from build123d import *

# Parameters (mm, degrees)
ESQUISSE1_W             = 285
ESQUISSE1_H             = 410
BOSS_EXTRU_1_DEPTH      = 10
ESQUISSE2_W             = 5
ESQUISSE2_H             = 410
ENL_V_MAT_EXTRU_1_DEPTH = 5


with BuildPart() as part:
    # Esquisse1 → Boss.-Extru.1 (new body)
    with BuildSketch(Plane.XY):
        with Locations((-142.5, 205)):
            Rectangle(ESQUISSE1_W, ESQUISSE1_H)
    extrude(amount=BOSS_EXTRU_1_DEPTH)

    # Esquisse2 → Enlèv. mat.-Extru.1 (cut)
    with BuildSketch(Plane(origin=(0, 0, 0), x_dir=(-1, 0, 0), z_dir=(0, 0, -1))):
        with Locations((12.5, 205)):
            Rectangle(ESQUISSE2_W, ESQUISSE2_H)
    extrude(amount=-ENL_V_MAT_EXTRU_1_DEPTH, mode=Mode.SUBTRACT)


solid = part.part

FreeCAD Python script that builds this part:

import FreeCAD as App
import Part
import Sketcher
Q = App.Units.Quantity

doc = App.newDocument("Part")
body = doc.addObject("PartDesign::Body", "Body")

# Sketch on XY plane
sketch1 = body.newObject("Sketcher::SketchObject", "Sketch")
sketch1.AttachmentSupport = (doc.getObject("XY_Plane"), [""])
sketch1.MapMode = "FlatFace"
sketch1.addGeometry(Part.LineSegment(App.Vector(-285, 410, 0), App.Vector(-285, 0, 0)), False)
sketch1.addGeometry(Part.LineSegment(App.Vector(-285, 0, 0), App.Vector(0, 0, 0)), False)
sketch1.addGeometry(Part.LineSegment(App.Vector(0, 0, 0), App.Vector(0, 410, 0)), False)
sketch1.addGeometry(Part.LineSegment(App.Vector(0, 410, 0), App.Vector(-285, 410, 0)), False)
sketch1.addConstraint(Sketcher.Constraint("Coincident", 0, 2, 1, 1))
sketch1.addConstraint(Sketcher.Constraint("Coincident", 1, 2, 2, 1))
sketch1.addConstraint(Sketcher.Constraint("Coincident", 2, 2, 3, 1))
sketch1.addConstraint(Sketcher.Constraint("Coincident", 3, 2, 0, 1))
sketch1.addConstraint(Sketcher.Constraint("Vertical", 0))
sketch1.addConstraint(Sketcher.Constraint("Horizontal", 1))
sketch1.addConstraint(Sketcher.Constraint("Vertical", 2))
sketch1.addConstraint(Sketcher.Constraint("Horizontal", 3))
sketch1.addConstraint(Sketcher.Constraint("Coincident", 1, 2, -1, 1))
sketch1.addConstraint(Sketcher.Constraint("DistanceX", 1, 1, 1, 2, Q("285 mm")))
sketch1.addConstraint(Sketcher.Constraint("DistanceY", 0, 2, 0, 1, Q("410 mm")))
pad1 = body.newObject("PartDesign::Pad", "Pad")
pad1.Profile = sketch1
pad1.Length = 10

# Sketch on XY plane
sketch2 = body.newObject("Sketcher::SketchObject", "Sketch001")
sketch2.AttachmentSupport = (doc.getObject("XY_Plane"), [""])
sketch2.MapMode = "FlatFace"
sketch2.addGeometry(Part.LineSegment(App.Vector(-10, 410, 0), App.Vector(-10, 0, 0)), False)
sketch2.addGeometry(Part.LineSegment(App.Vector(-10, 0, 0), App.Vector(-15, 0, 0)), False)
sketch2.addGeometry(Part.LineSegment(App.Vector(-15, 0, 0), App.Vector(-15, 410, 0)), False)
sketch2.addGeometry(Part.LineSegment(App.Vector(-15, 410, 0), App.Vector(-10, 410, 0)), False)
sketch2.addConstraint(Sketcher.Constraint("Coincident", 0, 2, 1, 1))
sketch2.addConstraint(Sketcher.Constraint("Coincident", 1, 2, 2, 1))
sketch2.addConstraint(Sketcher.Constraint("Coincident", 2, 2, 3, 1))
sketch2.addConstraint(Sketcher.Constraint("Coincident", 3, 2, 0, 1))
sketch2.addConstraint(Sketcher.Constraint("Vertical", 0))
sketch2.addConstraint(Sketcher.Constraint("Horizontal", 1))
sketch2.addConstraint(Sketcher.Constraint("Vertical", 2))
sketch2.addConstraint(Sketcher.Constraint("Horizontal", 3))
sketch2.addConstraint(Sketcher.Constraint("PointOnObject", 0, 2, -1))
sketch2.addConstraint(Sketcher.Constraint("DistanceX", 1, 2, 1, 1, Q("5 mm")))
sketch2.addConstraint(Sketcher.Constraint("DistanceY", 0, 2, 0, 1, Q("410 mm")))
sketch2.addConstraint(Sketcher.Constraint("DistanceX", 0, 2, -1, 1, Q("10 mm")))
pocket1 = body.newObject("PartDesign::Pocket", "Pocket")
pocket1.Profile = sketch2
pocket1.Length = 5
pocket1.Reversed = True

doc.recompute()
